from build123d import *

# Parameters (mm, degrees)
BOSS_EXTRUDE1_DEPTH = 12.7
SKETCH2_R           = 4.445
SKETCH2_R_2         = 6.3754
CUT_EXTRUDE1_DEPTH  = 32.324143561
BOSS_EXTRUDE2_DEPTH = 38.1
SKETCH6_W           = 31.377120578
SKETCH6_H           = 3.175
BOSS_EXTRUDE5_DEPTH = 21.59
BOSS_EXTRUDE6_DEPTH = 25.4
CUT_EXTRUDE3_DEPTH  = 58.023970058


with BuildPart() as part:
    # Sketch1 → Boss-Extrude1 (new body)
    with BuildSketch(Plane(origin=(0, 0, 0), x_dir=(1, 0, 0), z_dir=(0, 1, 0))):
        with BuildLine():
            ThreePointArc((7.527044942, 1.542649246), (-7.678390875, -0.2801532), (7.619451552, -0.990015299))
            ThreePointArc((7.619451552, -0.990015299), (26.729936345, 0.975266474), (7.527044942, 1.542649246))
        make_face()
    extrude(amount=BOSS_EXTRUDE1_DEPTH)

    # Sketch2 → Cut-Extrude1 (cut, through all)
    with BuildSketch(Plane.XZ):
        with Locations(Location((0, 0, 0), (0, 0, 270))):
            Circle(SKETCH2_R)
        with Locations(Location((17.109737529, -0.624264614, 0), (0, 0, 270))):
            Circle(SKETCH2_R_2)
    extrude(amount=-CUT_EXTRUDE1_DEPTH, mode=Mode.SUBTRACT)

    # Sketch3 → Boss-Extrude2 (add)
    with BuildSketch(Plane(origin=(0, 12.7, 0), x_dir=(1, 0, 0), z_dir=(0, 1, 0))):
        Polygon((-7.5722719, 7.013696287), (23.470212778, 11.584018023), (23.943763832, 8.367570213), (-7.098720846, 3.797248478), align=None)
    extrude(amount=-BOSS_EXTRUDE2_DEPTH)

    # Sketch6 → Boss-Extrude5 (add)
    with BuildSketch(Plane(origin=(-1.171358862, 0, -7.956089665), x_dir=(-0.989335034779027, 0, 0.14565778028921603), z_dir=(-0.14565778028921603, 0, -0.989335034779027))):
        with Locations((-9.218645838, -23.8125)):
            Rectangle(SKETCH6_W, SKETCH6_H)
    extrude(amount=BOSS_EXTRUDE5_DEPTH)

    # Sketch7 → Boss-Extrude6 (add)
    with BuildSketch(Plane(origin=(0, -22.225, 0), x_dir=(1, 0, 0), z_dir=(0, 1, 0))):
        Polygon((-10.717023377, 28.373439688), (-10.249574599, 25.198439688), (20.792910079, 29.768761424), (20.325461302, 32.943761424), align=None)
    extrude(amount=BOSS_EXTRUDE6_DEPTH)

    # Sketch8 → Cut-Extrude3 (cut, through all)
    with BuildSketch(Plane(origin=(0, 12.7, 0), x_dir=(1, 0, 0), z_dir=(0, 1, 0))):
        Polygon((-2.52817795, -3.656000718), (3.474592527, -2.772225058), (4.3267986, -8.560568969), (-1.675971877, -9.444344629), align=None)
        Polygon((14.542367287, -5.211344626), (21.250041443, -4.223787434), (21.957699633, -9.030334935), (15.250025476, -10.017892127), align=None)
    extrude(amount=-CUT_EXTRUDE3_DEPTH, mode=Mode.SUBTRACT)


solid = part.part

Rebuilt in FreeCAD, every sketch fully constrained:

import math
import FreeCAD as App
import Part
import Sketcher

V = App.Vector
Q = App.Units.Quantity

doc = App.newDocument("Part")
body = doc.addObject("PartDesign::Body", "Body")

# Sketch on XZ plane
sketch1 = doc.addObject("Sketcher::SketchObject", "Sketch")
body.addObject(sketch1)
sketch1.AttachmentSupport = (doc.XZ_Plane, [""])
sketch1.MapMode = "FlatFace"
sketch1.addGeometry(Part.ArcOfCircle(Part.Circle(V(0, 0, 0), V(0, 0, 1), 7.7), math.radians(7), math.radians(348)), False)
sketch1.addGeometry(Part.ArcOfCircle(Part.Circle(V(17.1, -0.6, 0), V(0, 0, 1), 9.6), math.radians(-175), math.radians(170)), False)
sketch1.addConstraint(Sketcher.Constraint("Coincident", 0, 1, 1, 2))
sketch1.addConstraint(Sketcher.Constraint("Coincident", 1, 1, 0, 2))
sketch1.addConstraint(Sketcher.Constraint("Coincident", 0, 3, -1, 1))
sketch1.addConstraint(Sketcher.Constraint("Radius", 1, Q("0.379 in")))
sketch1.addConstraint(Sketcher.Constraint("Radius", 0, Q("0.3025 in")))
sketch1.addConstraint(Sketcher.Constraint("DistanceX", -1, 1, 0, 1, Q("7.619452 mm")))
sketch1.addConstraint(Sketcher.Constraint("DistanceY", 1, 1, -1, 1, Q("1.542649 mm")))
pad1 = doc.addObject("PartDesign::Pad", "Pad")
body.addObject(pad1)
pad1.Profile = sketch1
pad1.Length = Q("0.5 in")
pad1.Reversed = True

# Sketch on XZ plane
sketch2 = doc.addObject("Sketcher::SketchObject", "Sketch001")
body.addObject(sketch2)
sketch2.AttachmentSupport = (doc.XZ_Plane, [""])
sketch2.MapMode = "FlatFace"
sketch2.addGeometry(Part.Circle(V(0, 0, 0), V(0, 0, 1), 4.4), False)
sketch2.addGeometry(Part.Circle(V(17.1, -0.6, 0), V(0, 0, 1), 6.4), False)
sketch2.addConstraint(Sketcher.Constraint("Coincident", 0, 3, -1, 1))
sketch2.addConstraint(Sketcher.Constraint("Diameter", 0, Q("0.35 in")))
sketch2.addConstraint(Sketcher.Constraint("Diameter", 1, Q("0.502 in")))
sketch2.addConstraint(Sketcher.Constraint("DistanceX", -1, 1, 1, 3, Q("17.109738 mm")))
sketch2.addConstraint(Sketcher.Constraint("DistanceY", 1, 3, -1, 1, Q("0.624265 mm")))
pocket1 = doc.addObject("PartDesign::Pocket", "Pocket")
body.addObject(pocket1)
pocket1.Profile = sketch2
pocket1.Type = "ThroughAll"

# Sketch on XZ plane
sketch3 = doc.addObject("Sketcher::SketchObject", "Sketch002")
body.addObject(sketch3)
sketch3.AttachmentSupport = (doc.XZ_Plane, [""])
sketch3.MapMode = "FlatFace"
sketch3.AttachmentOffset = App.Placement(V(0, 0, -0.5 * 25.4), App.Rotation())
sketch3.addGeometry(Part.LineSegment(V(23.5, -11.6, 0), V(-7.6, -7, 0)), False)
sketch3.addGeometry(Part.LineSegment(V(-7.6, -7, 0), V(-7.1, -3.8, 0)), False)
sketch3.addGeometry(Part.LineSegment(V(-7.1, -3.8, 0), V(23.9, -8.4, 0)), False)
sketch3.addGeometry(Part.LineSegment(V(23.9, -8.4, 0), V(23.5, -11.6, 0)), False)
sketch3.addConstraint(Sketcher.Constraint("Coincident", 0, 2, 1, 1))
sketch3.addConstraint(Sketcher.Constraint("Coincident", 1, 2, 2, 1))
sketch3.addConstraint(Sketcher.Constraint("Coincident", 2, 2, 3, 1))
sketch3.addConstraint(Sketcher.Constraint("Coincident", 3, 2, 0, 1))
sketch3.addConstraint(Sketcher.Constraint("Perpendicular", 0, 1))
sketch3.addConstraint(Sketcher.Constraint("Perpendicular", 1, 2))
sketch3.addConstraint(Sketcher.Constraint("Perpendicular", 2, 3))
sketch3.addConstraint(Sketcher.Constraint("Distance", 0, Q("31.377121 mm")))
sketch3.addConstraint(Sketcher.Constraint("Distance", 1, Q("3.251121 mm")))
sketch3.addConstraint(Sketcher.Constraint("DistanceX", 0, 2, -1, 1, Q("7.572272 mm")))
sketch3.addConstraint(Sketcher.Constraint("DistanceX", 1, 2, -1, 1, Q("7.098721 mm")))
sketch3.addConstraint(Sketcher.Constraint("DistanceY", 1, 2, -1, 1, Q("3.797248 mm")))
pad2 = doc.addObject("PartDesign::Pad", "Pad001")
body.addObject(pad2)
pad2.Profile = sketch3
pad2.Length = Q("1.5 in")

# Sketch on an angled plane
sketch4 = doc.addObject("Sketcher::SketchObject", "Sketch003")
body.addObject(sketch4)
sketch4.Placement = App.Placement(V(-1.171359, 0, -7.95609), App.Rotation(V(-0.989335035, 0, 0.14565778), V(0, 1, 0), V(-0.14565778, 0, -0.989335035), "ZXY"))
sketch4.addGeometry(Part.LineSegment(V(-24.9, -22.2, 0), V(-24.9, -25.4, 0)), False)
sketch4.addGeometry(Part.LineSegment(V(-24.9, -25.4, 0), V(6.5, -25.4, 0)), False)
sketch4.addGeometry(Part.LineSegment(V(6.5, -25.4, 0), V(6.5, -22.2, 0)), False)
sketch4.addGeometry(Part.LineSegment(V(6.5, -22.2, 0), V(-24.9, -22.2, 0)), False)
sketch4.addConstraint(Sketcher.Constraint("Coincident", 0, 2, 1, 1))
sketch4.addConstraint(Sketcher.Constraint("Coincident", 1, 2, 2, 1))
sketch4.addConstraint(Sketcher.Constraint("Coincident", 2, 2, 3, 1))
sketch4.addConstraint(Sketcher.Constraint("Coincident", 3, 2, 0, 1))
sketch4.addConstraint(Sketcher.Constraint("Vertical", 0))
sketch4.addConstraint(Sketcher.Constraint("Horizontal", 1))
sketch4.addConstraint(Sketcher.Constraint("Vertical", 2))
sketch4.addConstraint(Sketcher.Constraint("Horizontal", 3))
sketch4.addConstraint(Sketcher.Constraint("DistanceY", 0, 2, -1, 1, Q("1 in")))
sketch4.addConstraint(Sketcher.Constraint("DistanceY", 0, 2, 0, 1, Q("0.125 in")))
sketch4.addConstraint(Sketcher.Constraint("DistanceX", 1, 1, 1, 2, Q("31.377121 mm")))
sketch4.addConstraint(Sketcher.Constraint("DistanceX", 0, 2, -1, 1, Q("24.907206 mm")))
pad3 = doc.addObject("PartDesign::Pad", "Pad002")
body.addObject(pad3)
pad3.Profile = sketch4
pad3.Length = Q("0.85 in")

# Sketch on XZ plane
sketch5 = doc.addObject("Sketcher::SketchObject", "Sketch004")
body.addObject(sketch5)
sketch5.AttachmentSupport = (doc.XZ_Plane, [""])
sketch5.MapMode = "FlatFace"
sketch5.AttachmentOffset = App.Placement(V(0, 0, 0.875 * 25.4), App.Rotation())
sketch5.addGeometry(Part.LineSegment(V(-10.7, -28.4, 0), V(-10.2, -25.2, 0)), False)
sketch5.addGeometry(Part.LineSegment(V(-10.2, -25.2, 0), V(20.8, -29.8, 0)), False)
sketch5.addGeometry(Part.LineSegment(V(20.8, -29.8, 0), V(20.3, -32.9, 0)), False)
sketch5.addGeometry(Part.LineSegment(V(20.3, -32.9, 0), V(-10.7, -28.4, 0)), False)
sketch5.addConstraint(Sketcher.Constraint("Coincident", 0, 2, 1, 1))
sketch5.addConstraint(Sketcher.Constraint("Coincident", 1, 2, 2, 1))
sketch5.addConstraint(Sketcher.Constraint("Coincident", 2, 2, 3, 1))
sketch5.addConstraint(Sketcher.Constraint("Coincident", 3, 2, 0, 1))
sketch5.addConstraint(Sketcher.Constraint("Perpendicular", 0, 1))
sketch5.addConstraint(Sketcher.Constraint("Perpendicular", 1, 2))
sketch5.addConstraint(Sketcher.Constraint("Perpendicular", 2, 3))
sketch5.addConstraint(Sketcher.Constraint("DistanceY", 2, 2, 1, 2, Q("0.125 in")))
sketch5.addConstraint(Sketcher.Constraint("Distance", 1, Q("31.377121 mm")))
sketch5.addConstraint(Sketcher.Constraint("DistanceY", 0, 2, -1, 1, Q("25.19844 mm")))
sketch5.addConstraint(Sketcher.Constraint("DistanceX", -1, 1, 1, 2, Q("20.79291 mm")))
sketch5.addConstraint(Sketcher.Constraint("DistanceY", 1, 2, -1, 1, Q("29.768761 mm")))
pad4 = doc.addObject("PartDesign::Pad", "Pad003")
body.addObject(pad4)
pad4.Profile = sketch5
pad4.Length = Q("1 in")
pad4.Reversed = True

# Sketch on XZ plane
sketch6 = doc.addObject("Sketcher::SketchObject", "Sketch005")
body.addObject(sketch6)
sketch6.AttachmentSupport = (doc.XZ_Plane, [""])
sketch6.MapMode = "FlatFace"
sketch6.AttachmentOffset = App.Placement(V(0, 0, -0.5 * 25.4), App.Rotation())
sketch6.addGeometry(Part.LineSegment(V(3.5, 2.8, 0), V(-2.5, 3.7, 0)), False)
sketch6.addGeometry(Part.LineSegment(V(-2.5, 3.7, 0), V(-1.7, 9.4, 0)), False)
sketch6.addGeometry(Part.LineSegment(V(-1.7, 9.4, 0), V(4.3, 8.6, 0)), False)
sketch6.addGeometry(Part.LineSegment(V(4.3, 8.6, 0), V(3.5, 2.8, 0)), False)
sketch6.addGeometry(Part.LineSegment(V(21.3, 4.2, 0), V(14.5, 5.2, 0)), False)
sketch6.addGeometry(Part.LineSegment(V(14.5, 5.2, 0), V(15.3, 10, 0)), False)
sketch6.addGeometry(Part.LineSegment(V(15.3, 10, 0), V(22, 9, 0)), False)
sketch6.addGeometry(Part.LineSegment(V(22, 9, 0), V(21.3, 4.2, 0)), False)
sketch6.addConstraint(Sketcher.Constraint("Coincident", 0, 2, 1, 1))
sketch6.addConstraint(Sketcher.Constraint("Coincident", 1, 2, 2, 1))
sketch6.addConstraint(Sketcher.Constraint("Coincident", 2, 2, 3, 1))
sketch6.addConstraint(Sketcher.Constraint("Coincident", 3, 2, 0, 1))
sketch6.addConstraint(Sketcher.Constraint("Coincident", 4, 2, 5, 1))
sketch6.addConstraint(Sketcher.Constraint("Coincident", 5, 2, 6, 1))
sketch6.addConstraint(Sketcher.Constraint("Coincident", 6, 2, 7, 1))
sketch6.addConstraint(Sketcher.Constraint("Coincident", 7, 2, 4, 1))
sketch6.addConstraint(Sketcher.Constraint("Perpendicular", 0, 1))
sketch6.addConstraint(Sketcher.Constraint("Perpendicular", 1, 2))
sketch6.addConstraint(Sketcher.Constraint("Perpendicular", 2, 3))
sketch6.addConstraint(Sketcher.Constraint("Perpendicular", 3, 4))
sketch6.addConstraint(Sketcher.Constraint("Perpendicular", 4, 5))
sketch6.addConstraint(Sketcher.Constraint("Perpendicular", 5, 6))
sketch6.addConstraint(Sketcher.Constraint("Perpendicular", 6, 7))
sketch6.addConstraint(Sketcher.Constraint("DistanceY", -1, 1, 0, 2, Q("3.656001 mm")))
sketch6.addConstraint(Sketcher.Constraint("DistanceX", -1, 1, 2, 2, Q("4.326799 mm")))
sketch6.addConstraint(Sketcher.Constraint("DistanceX", -1, 1, 6, 2, Q("21.9577 mm")))
sketch6.addConstraint(Sketcher.Constraint("DistanceY", 4, 2, 1, 2, Q("4.233 mm")))
sketch6.addConstraint(Sketcher.Constraint("Distance", 0, Q("6.06748 mm")))
sketch6.addConstraint(Sketcher.Constraint("Distance", 1, Q("5.850742 mm")))
sketch6.addConstraint(Sketcher.Constraint("Distance", 5, Q("4.858362 mm")))
sketch6.addConstraint(Sketcher.Constraint("DistanceX", 1, 2, -1, 1, Q("1.675972 mm")))
sketch6.addConstraint(Sketcher.Constraint("DistanceX", 2, 2, 4, 2, Q("10.215569 mm")))
pocket2 = doc.addObject("PartDesign::Pocket", "Pocket001")
body.addObject(pocket2)
pocket2.Profile = sketch6
pocket2.Type = "ThroughAll"
pocket2.Reversed = True

doc.recompute()
